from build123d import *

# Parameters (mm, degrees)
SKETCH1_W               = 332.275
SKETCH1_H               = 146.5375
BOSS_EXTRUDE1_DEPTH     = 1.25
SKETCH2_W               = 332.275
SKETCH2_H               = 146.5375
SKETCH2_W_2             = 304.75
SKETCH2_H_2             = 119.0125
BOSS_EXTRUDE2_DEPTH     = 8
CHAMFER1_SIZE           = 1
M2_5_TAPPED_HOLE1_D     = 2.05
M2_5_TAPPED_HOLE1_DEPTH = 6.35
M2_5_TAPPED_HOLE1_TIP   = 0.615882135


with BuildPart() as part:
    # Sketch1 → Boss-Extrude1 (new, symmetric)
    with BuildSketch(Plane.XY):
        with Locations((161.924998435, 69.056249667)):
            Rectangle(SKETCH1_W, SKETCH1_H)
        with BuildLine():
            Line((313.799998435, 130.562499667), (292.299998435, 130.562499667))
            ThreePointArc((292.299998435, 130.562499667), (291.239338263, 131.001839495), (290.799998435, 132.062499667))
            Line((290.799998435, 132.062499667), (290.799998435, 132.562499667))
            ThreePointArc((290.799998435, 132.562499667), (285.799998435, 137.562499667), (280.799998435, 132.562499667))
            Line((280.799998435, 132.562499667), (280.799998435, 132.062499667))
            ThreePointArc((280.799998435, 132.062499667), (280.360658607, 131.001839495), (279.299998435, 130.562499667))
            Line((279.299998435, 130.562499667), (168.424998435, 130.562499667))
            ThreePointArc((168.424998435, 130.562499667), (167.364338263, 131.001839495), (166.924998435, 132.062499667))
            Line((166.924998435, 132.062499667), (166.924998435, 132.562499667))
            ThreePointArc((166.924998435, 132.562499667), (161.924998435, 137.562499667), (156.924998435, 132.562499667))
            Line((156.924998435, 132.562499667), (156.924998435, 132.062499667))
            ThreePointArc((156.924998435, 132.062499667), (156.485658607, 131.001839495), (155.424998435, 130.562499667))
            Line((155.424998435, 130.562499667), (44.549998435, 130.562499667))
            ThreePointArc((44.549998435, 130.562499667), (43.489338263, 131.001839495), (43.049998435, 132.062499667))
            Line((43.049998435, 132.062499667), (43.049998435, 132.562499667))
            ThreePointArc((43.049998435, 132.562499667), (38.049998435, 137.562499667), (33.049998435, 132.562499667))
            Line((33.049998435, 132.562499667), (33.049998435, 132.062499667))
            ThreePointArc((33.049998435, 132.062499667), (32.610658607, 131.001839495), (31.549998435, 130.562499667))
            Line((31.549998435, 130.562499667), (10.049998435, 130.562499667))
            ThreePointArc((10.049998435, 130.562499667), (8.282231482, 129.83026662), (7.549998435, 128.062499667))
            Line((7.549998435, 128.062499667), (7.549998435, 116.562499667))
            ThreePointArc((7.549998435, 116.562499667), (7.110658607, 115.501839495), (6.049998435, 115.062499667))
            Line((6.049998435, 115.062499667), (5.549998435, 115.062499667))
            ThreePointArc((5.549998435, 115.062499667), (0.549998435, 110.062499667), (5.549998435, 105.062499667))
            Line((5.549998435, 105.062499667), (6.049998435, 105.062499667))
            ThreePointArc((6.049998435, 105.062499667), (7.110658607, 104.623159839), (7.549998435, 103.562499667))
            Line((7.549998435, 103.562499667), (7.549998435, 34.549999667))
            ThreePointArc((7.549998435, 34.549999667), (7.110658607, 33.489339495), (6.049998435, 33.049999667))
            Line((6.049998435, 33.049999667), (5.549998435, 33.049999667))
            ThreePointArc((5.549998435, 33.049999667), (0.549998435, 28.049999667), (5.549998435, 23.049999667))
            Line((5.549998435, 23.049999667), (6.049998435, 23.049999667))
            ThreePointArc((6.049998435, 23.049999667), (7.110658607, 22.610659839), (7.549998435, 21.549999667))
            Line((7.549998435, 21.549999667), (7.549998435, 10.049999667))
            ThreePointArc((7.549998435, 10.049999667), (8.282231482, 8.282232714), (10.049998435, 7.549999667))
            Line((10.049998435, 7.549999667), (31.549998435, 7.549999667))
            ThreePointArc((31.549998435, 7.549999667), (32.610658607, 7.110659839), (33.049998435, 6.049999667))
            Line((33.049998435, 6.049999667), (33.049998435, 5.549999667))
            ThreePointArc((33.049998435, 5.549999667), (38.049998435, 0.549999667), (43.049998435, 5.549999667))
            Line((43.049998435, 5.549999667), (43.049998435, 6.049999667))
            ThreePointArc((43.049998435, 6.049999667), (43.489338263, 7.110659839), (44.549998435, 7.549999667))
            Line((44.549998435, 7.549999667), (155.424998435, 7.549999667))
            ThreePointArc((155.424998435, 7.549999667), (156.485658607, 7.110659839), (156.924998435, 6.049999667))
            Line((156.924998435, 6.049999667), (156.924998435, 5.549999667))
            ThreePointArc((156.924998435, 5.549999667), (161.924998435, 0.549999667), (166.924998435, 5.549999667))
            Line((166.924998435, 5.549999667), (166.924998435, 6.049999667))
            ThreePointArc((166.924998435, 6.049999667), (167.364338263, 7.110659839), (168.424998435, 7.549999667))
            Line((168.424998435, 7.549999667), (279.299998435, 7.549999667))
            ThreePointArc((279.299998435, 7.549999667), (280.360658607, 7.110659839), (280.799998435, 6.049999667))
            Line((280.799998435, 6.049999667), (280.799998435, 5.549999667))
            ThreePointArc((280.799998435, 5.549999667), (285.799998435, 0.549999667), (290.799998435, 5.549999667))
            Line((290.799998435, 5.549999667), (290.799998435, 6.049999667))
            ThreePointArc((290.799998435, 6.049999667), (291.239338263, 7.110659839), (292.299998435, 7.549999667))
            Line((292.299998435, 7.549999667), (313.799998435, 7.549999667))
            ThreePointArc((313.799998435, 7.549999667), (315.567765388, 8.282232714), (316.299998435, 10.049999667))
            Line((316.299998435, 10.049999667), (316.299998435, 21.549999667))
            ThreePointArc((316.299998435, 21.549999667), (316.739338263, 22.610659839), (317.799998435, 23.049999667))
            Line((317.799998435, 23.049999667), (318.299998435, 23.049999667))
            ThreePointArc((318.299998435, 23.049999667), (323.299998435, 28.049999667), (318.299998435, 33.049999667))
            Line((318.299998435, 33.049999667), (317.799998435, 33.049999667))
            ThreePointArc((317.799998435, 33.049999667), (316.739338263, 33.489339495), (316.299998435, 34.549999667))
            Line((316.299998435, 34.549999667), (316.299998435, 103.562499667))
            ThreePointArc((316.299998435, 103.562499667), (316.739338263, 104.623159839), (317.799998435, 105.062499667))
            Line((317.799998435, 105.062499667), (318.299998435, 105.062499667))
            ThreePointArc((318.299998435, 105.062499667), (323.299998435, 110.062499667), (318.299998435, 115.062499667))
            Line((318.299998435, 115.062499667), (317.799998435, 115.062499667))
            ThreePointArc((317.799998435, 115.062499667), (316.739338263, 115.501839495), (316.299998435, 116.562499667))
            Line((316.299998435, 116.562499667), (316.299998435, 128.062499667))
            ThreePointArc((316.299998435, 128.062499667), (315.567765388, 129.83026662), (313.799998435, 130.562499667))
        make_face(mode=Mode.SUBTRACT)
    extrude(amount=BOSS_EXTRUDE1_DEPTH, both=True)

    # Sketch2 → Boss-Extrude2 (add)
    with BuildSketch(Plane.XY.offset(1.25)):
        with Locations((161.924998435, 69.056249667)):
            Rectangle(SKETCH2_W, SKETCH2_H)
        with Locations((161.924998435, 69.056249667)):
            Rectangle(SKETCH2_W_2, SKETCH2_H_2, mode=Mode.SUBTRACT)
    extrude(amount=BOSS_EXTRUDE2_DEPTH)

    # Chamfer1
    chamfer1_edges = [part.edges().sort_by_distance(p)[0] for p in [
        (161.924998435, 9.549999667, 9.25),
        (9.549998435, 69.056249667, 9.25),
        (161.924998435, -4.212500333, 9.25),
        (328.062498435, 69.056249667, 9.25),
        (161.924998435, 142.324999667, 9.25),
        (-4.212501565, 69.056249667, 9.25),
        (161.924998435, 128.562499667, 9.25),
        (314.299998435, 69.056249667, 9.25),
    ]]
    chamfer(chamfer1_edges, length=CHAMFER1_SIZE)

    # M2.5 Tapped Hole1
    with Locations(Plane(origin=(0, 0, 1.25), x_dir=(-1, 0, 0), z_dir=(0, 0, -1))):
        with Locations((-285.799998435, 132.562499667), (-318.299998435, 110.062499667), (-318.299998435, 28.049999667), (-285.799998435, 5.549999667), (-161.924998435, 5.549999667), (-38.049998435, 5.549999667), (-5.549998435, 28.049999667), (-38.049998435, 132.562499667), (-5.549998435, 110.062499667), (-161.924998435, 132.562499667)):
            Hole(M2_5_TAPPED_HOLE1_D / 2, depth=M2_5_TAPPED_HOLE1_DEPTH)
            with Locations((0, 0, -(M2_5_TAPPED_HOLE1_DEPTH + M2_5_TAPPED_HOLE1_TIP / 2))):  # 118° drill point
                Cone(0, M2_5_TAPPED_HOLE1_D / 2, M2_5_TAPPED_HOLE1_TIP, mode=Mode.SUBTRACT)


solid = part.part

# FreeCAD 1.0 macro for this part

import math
import FreeCAD as App
import Part
import Sketcher


def edges_at(feature, points):
    """Names of the edges that pass closest to the given points."""
    edges = feature.Shape.Edges
    near = lambda p: min(range(len(edges)), key=lambda i: edges[i].distToShape(Part.Vertex(*p))[0])
    return sorted({f"Edge{near(p) + 1}" for p in points})


def add_polygon(sketch, points):
    """Adds a closed chain of lines whose ends are joined by coincident constraints."""
    first, n = sketch.GeometryCount, len(points)
    for a, b in zip(points, points[1:] + points[:1]):
        sketch.addGeometry(Part.LineSegment(App.Vector(*a, 0), App.Vector(*b, 0)), False)
    for i in range(n):
        sketch.addConstraint(Sketcher.Constraint("Coincident", first + i, 2, first + (i + 1) % n, 1))

doc = App.newDocument("Part")
body = doc.addObject("PartDesign::Body", "Body")

# Sketch on XY plane
sketch1 = doc.addObject("Sketcher::SketchObject", "Sketch")
body.addObject(sketch1)
sketch1.AttachmentSupport = (doc.XY_Plane, [""])
sketch1.MapMode = "FlatFace"
add_polygon(sketch1, [(-4.2, 142.3), (-4.2, -4.2), (328.1, -4.2), (328.1, 142.3)])  # lines 0-3
sketch1.addGeometry(Part.LineSegment(App.Vector(292.3, 130.6, 0), App.Vector(313.8, 130.6, 0)), False)  # 4
sketch1.addGeometry(Part.ArcOfCircle(Part.Circle(App.Vector(313.8, 128.1, 0), App.Vector(0, 0, 1), 2.5), math.radians(0), math.radians(90)), False)  # 5
sketch1.addGeometry(Part.LineSegment(App.Vector(316.3, 128.1, 0), App.Vector(316.3, 116.6, 0)), False)  # 6
sketch1.addGeometry(Part.ArcOfCircle(Part.Circle(App.Vector(317.8, 116.6, 0), App.Vector(0, 0, 1), 1.5), math.radians(180), math.radians(270)), False)  # 7
sketch1.addGeometry(Part.LineSegment(App.Vector(317.8, 115.1, 0), App.Vector(318.3, 115.1, 0)), False)  # 8
sketch1.addGeometry(Part.ArcOfCircle(Part.Circle(App.Vector(318.3, 110.1, 0), App.Vector(0, 0, 1), 5), math.radians(-90), math.radians(90)), False)  # 9
sketch1.addGeometry(Part.LineSegment(App.Vector(318.3, 105.1, 0), App.Vector(317.8, 105.1, 0)), False)  # 10
sketch1.addGeometry(Part.ArcOfCircle(Part.Circle(App.Vector(317.8, 103.6, 0), App.Vector(0, 0, 1), 1.5), math.radians(90), math.radians(180)), False)  # 11
sketch1.addGeometry(Part.LineSegment(App.Vector(316.3, 103.6, 0), App.Vector(316.3, 34.5, 0)), False)  # 12
sketch1.addGeometry(Part.ArcOfCircle(Part.Circle(App.Vector(317.8, 34.5, 0), App.Vector(0, 0, 1), 1.5), math.radians(180), math.radians(270)), False)  # 13
sketch1.addGeometry(Part.LineSegment(App.Vector(317.8, 33, 0), App.Vector(318.3, 33, 0)), False)  # 14
sketch1.addGeometry(Part.ArcOfCircle(Part.Circle(App.Vector(318.3, 28, 0), App.Vector(0, 0, 1), 5), math.radians(-90), math.radians(90)), False)  # 15
sketch1.addGeometry(Part.LineSegment(App.Vector(318.3, 23, 0), App.Vector(317.8, 23, 0)), False)  # 16
sketch1.addGeometry(Part.ArcOfCircle(Part.Circle(App.Vector(317.8, 21.5, 0), App.Vector(0, 0, 1), 1.5), math.radians(90), math.radians(180)), False)  # 17
sketch1.addGeometry(Part.LineSegment(App.Vector(316.3, 21.5, 0), App.Vector(316.3, 10, 0)), False)  # 18
sketch1.addGeometry(Part.ArcOfCircle(Part.Circle(App.Vector(313.8, 10, 0), App.Vector(0, 0, 1), 2.5), math.radians(-90), math.radians(0)), False)  # 19
sketch1.addGeometry(Part.LineSegment(App.Vector(313.8, 7.5, 0), App.Vector(292.3, 7.5, 0)), False)  # 20
sketch1.addGeometry(Part.ArcOfCircle(Part.Circle(App.Vector(292.3, 6, 0), App.Vector(0, 0, 1), 1.5), math.radians(90), math.radians(180)), False)  # 21
sketch1.addGeometry(Part.LineSegment(App.Vector(290.8, 6, 0), App.Vector(290.8, 5.5, 0)), False)  # 22
sketch1.addGeometry(Part.ArcOfCircle(Part.Circle(App.Vector(285.8, 5.5, 0), App.Vector(0, 0, 1), 5), math.radians(180), math.radians(360)), False)  # 23
sketch1.addGeometry(Part.LineSegment(App.Vector(280.8, 5.5, 0), App.Vector(280.8, 6, 0)), False)  # 24
sketch1.addGeometry(Part.ArcOfCircle(Part.Circle(App.Vector(279.3, 6, 0), App.Vector(0, 0, 1), 1.5), math.radians(0), math.radians(90)), False)  # 25
sketch1.addGeometry(Part.LineSegment(App.Vector(279.3, 7.5, 0), App.Vector(168.4, 7.5, 0)), False)  # 26
sketch1.addGeometry(Part.ArcOfCircle(Part.Circle(App.Vector(168.4, 6, 0), App.Vector(0, 0, 1), 1.5), math.radians(90), math.radians(180)), False)  # 27
sketch1.addGeometry(Part.LineSegment(App.Vector(166.9, 6, 0), App.Vector(166.9, 5.5, 0)), False)  # 28
sketch1.addGeometry(Part.ArcOfCircle(Part.Circle(App.Vector(161.9, 5.5, 0), App.Vector(0, 0, 1), 5), math.radians(180), math.radians(360)), False)  # 29
sketch1.addGeometry(Part.LineSegment(App.Vector(156.9, 5.5, 0), App.Vector(156.9, 6, 0)), False)  # 30
sketch1.addGeometry(Part.ArcOfCircle(Part.Circle(App.Vector(155.4, 6, 0), App.Vector(0, 0, 1), 1.5), math.radians(0), math.radians(90)), False)  # 31
sketch1.addGeometry(Part.LineSegment(App.Vector(155.4, 7.5, 0), App.Vector(44.5, 7.5, 0)), False)  # 32
sketch1.addGeometry(Part.ArcOfCircle(Part.Circle(App.Vector(44.5, 6, 0), App.Vector(0, 0, 1), 1.5), math.radians(90), math.radians(180)), False)  # 33
sketch1.addGeometry(Part.LineSegment(App.Vector(43, 6, 0), App.Vector(43, 5.5, 0)), False)  # 34
sketch1.addGeometry(Part.ArcOfCircle(Part.Circle(App.Vector(38, 5.5, 0), App.Vector(0, 0, 1), 5), math.radians(180), math.radians(360)), False)  # 35
sketch1.addGeometry(Part.LineSegment(App.Vector(33, 5.5, 0), App.Vector(33, 6, 0)), False)  # 36
sketch1.addGeometry(Part.ArcOfCircle(Part.Circle(App.Vector(31.5, 6, 0), App.Vector(0, 0, 1), 1.5), math.radians(0), math.radians(90)), False)  # 37
sketch1.addGeometry(Part.LineSegment(App.Vector(31.5, 7.5, 0), App.Vector(10, 7.5, 0)), False)  # 38
sketch1.addGeometry(Part.ArcOfCircle(Part.Circle(App.Vector(10, 10, 0), App.Vector(0, 0, 1), 2.5), math.radians(180), math.radians(270)), False)  # 39
sketch1.addGeometry(Part.LineSegment(App.Vector(7.5, 10, 0), App.Vector(7.5, 21.5, 0)), False)  # 40
sketch1.addGeometry(Part.ArcOfCircle(Part.Circle(App.Vector(6, 21.5, 0), App.Vector(0, 0, 1), 1.5), math.radians(0), math.radians(90)), False)  # 41
sketch1.addGeometry(Part.LineSegment(App.Vector(6, 23, 0), App.Vector(5.5, 23, 0)), False)  # 42
sketch1.addGeometry(Part.ArcOfCircle(Part.Circle(App.Vector(5.5, 28, 0), App.Vector(0, 0, 1), 5), math.radians(90), math.radians(270)), False)  # 43
sketch1.addGeometry(Part.LineSegment(App.Vector(5.5, 33, 0), App.Vector(6, 33, 0)), False)  # 44
sketch1.addGeometry(Part.ArcOfCircle(Part.Circle(App.Vector(6, 34.5, 0), App.Vector(0, 0, 1), 1.5), math.radians(-90), math.radians(0)), False)  # 45
sketch1.addGeometry(Part.LineSegment(App.Vector(7.5, 34.5, 0), App.Vector(7.5, 103.6, 0)), False)  # 46
sketch1.addGeometry(Part.ArcOfCircle(Part.Circle(App.Vector(6, 103.6, 0), App.Vector(0, 0, 1), 1.5), math.radians(0), math.radians(90)), False)  # 47
sketch1.addGeometry(Part.LineSegment(App.Vector(6, 105.1, 0), App.Vector(5.5, 105.1, 0)), False)  # 48
sketch1.addGeometry(Part.ArcOfCircle(Part.Circle(App.Vector(5.5, 110.1, 0), App.Vector(0, 0, 1), 5), math.radians(90), math.radians(270)), False)  # 49
sketch1.addGeometry(Part.LineSegment(App.Vector(5.5, 115.1, 0), App.Vector(6, 115.1, 0)), False)  # 50
sketch1.addGeometry(Part.ArcOfCircle(Part.Circle(App.Vector(6, 116.6, 0), App.Vector(0, 0, 1), 1.5), math.radians(-90), math.radians(0)), False)  # 51
sketch1.addGeometry(Part.LineSegment(App.Vector(7.5, 116.6, 0), App.Vector(7.5, 128.1, 0)), False)  # 52
sketch1.addGeometry(Part.ArcOfCircle(Part.Circle(App.Vector(10, 128.1, 0), App.Vector(0, 0, 1), 2.5), math.radians(90), math.radians(180)), False)  # 53
sketch1.addGeometry(Part.LineSegment(App.Vector(10, 130.6, 0), App.Vector(31.5, 130.6, 0)), False)  # 54
sketch1.addGeometry(Part.ArcOfCircle(Part.Circle(App.Vector(31.5, 132.1, 0), App.Vector(0, 0, 1), 1.5), math.radians(-90), math.radians(0)), False)  # 55
sketch1.addGeometry(Part.LineSegment(App.Vector(33, 132.1, 0), App.Vector(33, 132.6, 0)), False)  # 56
sketch1.addGeometry(Part.ArcOfCircle(Part.Circle(App.Vector(38, 132.6, 0), App.Vector(0, 0, 1), 5), math.radians(0), math.radians(180)), False)  # 57
sketch1.addGeometry(Part.LineSegment(App.Vector(43, 132.6, 0), App.Vector(43, 132.1, 0)), False)  # 58
sketch1.addGeometry(Part.ArcOfCircle(Part.Circle(App.Vector(44.5, 132.1, 0), App.Vector(0, 0, 1), 1.5), math.radians(180), math.radians(270)), False)  # 59
sketch1.addGeometry(Part.LineSegment(App.Vector(44.5, 130.6, 0), App.Vector(155.4, 130.6, 0)), False)  # 60
sketch1.addGeometry(Part.ArcOfCircle(Part.Circle(App.Vector(155.4, 132.1, 0), App.Vector(0, 0, 1), 1.5), math.radians(-90), math.radians(0)), False)  # 61
sketch1.addGeometry(Part.LineSegment(App.Vector(156.9, 132.1, 0), App.Vector(156.9, 132.6, 0)), False)  # 62
sketch1.addGeometry(Part.ArcOfCircle(Part.Circle(App.Vector(161.9, 132.6, 0), App.Vector(0, 0, 1), 5), math.radians(0), math.radians(180)), False)  # 63
sketch1.addGeometry(Part.LineSegment(App.Vector(166.9, 132.6, 0), App.Vector(166.9, 132.1, 0)), False)  # 64
sketch1.addGeometry(Part.ArcOfCircle(Part.Circle(App.Vector(168.4, 132.1, 0), App.Vector(0, 0, 1), 1.5), math.radians(180), math.radians(270)), False)  # 65
sketch1.addGeometry(Part.LineSegment(App.Vector(168.4, 130.6, 0), App.Vector(279.3, 130.6, 0)), False)  # 66
sketch1.addGeometry(Part.ArcOfCircle(Part.Circle(App.Vector(279.3, 132.1, 0), App.Vector(0, 0, 1), 1.5), math.radians(-90), math.radians(0)), False)  # 67
sketch1.addGeometry(Part.LineSegment(App.Vector(280.8, 132.1, 0), App.Vector(280.8, 132.6, 0)), False)  # 68
sketch1.addGeometry(Part.ArcOfCircle(Part.Circle(App.Vector(285.8, 132.6, 0), App.Vector(0, 0, 1), 5), math.radians(0), math.radians(180)), False)  # 69
sketch1.addGeometry(Part.LineSegment(App.Vector(290.8, 132.6, 0), App.Vector(290.8, 132.1, 0)), False)  # 70
sketch1.addGeometry(Part.ArcOfCircle(Part.Circle(App.Vector(292.3, 132.1, 0), App.Vector(0, 0, 1), 1.5), math.radians(180), math.radians(270)), False)  # 71
sketch1.addConstraint([
    Sketcher.Constraint("Tangent", 4, 2, 5, 2),
    Sketcher.Constraint("Tangent", 5, 1, 6, 1),
    Sketcher.Constraint("Tangent", 6, 2, 7, 1),
    Sketcher.Constraint("Tangent", 7, 2, 8, 1),
    Sketcher.Constraint("Tangent", 8, 2, 9, 2),
    Sketcher.Constraint("Tangent", 9, 1, 10, 1),
    Sketcher.Constraint("Tangent", 10, 2, 11, 1),
    Sketcher.Constraint("Tangent", 11, 2, 12, 1),
    Sketcher.Constraint("Tangent", 12, 2, 13, 1),
    Sketcher.Constraint("Tangent", 13, 2, 14, 1),
    Sketcher.Constraint("Tangent", 14, 2, 15, 2),
    Sketcher.Constraint("Tangent", 15, 1, 16, 1),
    Sketcher.Constraint("Tangent", 16, 2, 17, 1),
    Sketcher.Constraint("Tangent", 17, 2, 18, 1),
    Sketcher.Constraint("Tangent", 18, 2, 19, 2),
    Sketcher.Constraint("Tangent", 19, 1, 20, 1),
    Sketcher.Constraint("Tangent", 20, 2, 21, 1),
    Sketcher.Constraint("Tangent", 21, 2, 22, 1),
    Sketcher.Constraint("Tangent", 22, 2, 23, 2),
    Sketcher.Constraint("Tangent", 23, 1, 24, 1),
    Sketcher.Constraint("Tangent", 24, 2, 25, 1),
    Sketcher.Constraint("Tangent", 25, 2, 26, 1),
    Sketcher.Constraint("Tangent", 26, 2, 27, 1),
    Sketcher.Constraint("Tangent", 27, 2, 28, 1),
    Sketcher.Constraint("Tangent", 28, 2, 29, 2),
    Sketcher.Constraint("Tangent", 29, 1, 30, 1),
    Sketcher.Constraint("Tangent", 30, 2, 31, 1),
    Sketcher.Constraint("Tangent", 31, 2, 32, 1),
    Sketcher.Constraint("Tangent", 32, 2, 33, 1),
    Sketcher.Constraint("Tangent", 33, 2, 34, 1),
    Sketcher.Constraint("Tangent", 34, 2, 35, 2),
    Sketcher.Constraint("Tangent", 35, 1, 36, 1),
    Sketcher.Constraint("Tangent", 36, 2, 37, 1),
    Sketcher.Constraint("Tangent", 37, 2, 38, 1),
    Sketcher.Constraint("Tangent", 38, 2, 39, 2),
    Sketcher.Constraint("Tangent", 39, 1, 40, 1),
    Sketcher.Constraint("Tangent", 40, 2, 41, 1),
    Sketcher.Constraint("Tangent", 41, 2, 42, 1),
    Sketcher.Constraint("Tangent", 42, 2, 43, 2),
    Sketcher.Constraint("Tangent", 43, 1, 44, 1),
    Sketcher.Constraint("Tangent", 44, 2, 45, 1),
    Sketcher.Constraint("Tangent", 45, 2, 46, 1),
    Sketcher.Constraint("Tangent", 46, 2, 47, 1),
    Sketcher.Constraint("Tangent", 47, 2, 48, 1),
    Sketcher.Constraint("Tangent", 48, 2, 49, 2),
    Sketcher.Constraint("Tangent", 49, 1, 50, 1),
    Sketcher.Constraint("Tangent", 50, 2, 51, 1),
    Sketcher.Constraint("Tangent", 51, 2, 52, 1),
    Sketcher.Constraint("Tangent", 52, 2, 53, 2),
    Sketcher.Constraint("Tangent", 53, 1, 54, 1),
    Sketcher.Constraint("Tangent", 54, 2, 55, 1),
    Sketcher.Constraint("Tangent", 55, 2, 56, 1),
    Sketcher.Constraint("Tangent", 56, 2, 57, 2),
    Sketcher.Constraint("Tangent", 57, 1, 58, 1),
    Sketcher.Constraint("Tangent", 58, 2, 59, 1),
    Sketcher.Constraint("Tangent", 59, 2, 60, 1),
    Sketcher.Constraint("Tangent", 60, 2, 61, 1),
    Sketcher.Constraint("Tangent", 61, 2, 62, 1),
    Sketcher.Constraint("Tangent", 62, 2, 63, 2),
    Sketcher.Constraint("Tangent", 63, 1, 64, 1),
    Sketcher.Constraint("Tangent", 64, 2, 65, 1),
    Sketcher.Constraint("Tangent", 65, 2, 66, 1),
    Sketcher.Constraint("Tangent", 66, 2, 67, 1),
    Sketcher.Constraint("Tangent", 67, 2, 68, 1),
    Sketcher.Constraint("Tangent", 68, 2, 69, 2),
    Sketcher.Constraint("Tangent", 69, 1, 70, 1),
    Sketcher.Constraint("Tangent", 70, 2, 71, 1),
    Sketcher.Constraint("Tangent", 71, 2, 4, 1),
    Sketcher.Constraint("Vertical", 0),
    Sketcher.Constraint("Horizontal", 1),
    Sketcher.Constraint("Vertical", 2),
    Sketcher.Constraint("Horizontal", 3),
    Sketcher.Constraint("Horizontal", 4),
    Sketcher.Constraint("Vertical", 6),
    Sketcher.Constraint("Horizontal", 8),
    Sketcher.Constraint("Horizontal", 10),
    Sketcher.Constraint("Vertical", 12),
    Sketcher.Constraint("Horizontal", 14),
    Sketcher.Constraint("Horizontal", 16),
    Sketcher.Constraint("Vertical", 18),
    Sketcher.Constraint("Horizontal", 20),
    Sketcher.Constraint("Vertical", 22),
    Sketcher.Constraint("Vertical", 24),
    Sketcher.Constraint("Horizontal", 26),
    Sketcher.Constraint("Vertical", 28),
    Sketcher.Constraint("Vertical", 30),
    Sketcher.Constraint("Horizontal", 32),
    Sketcher.Constraint("Vertical", 34),
    Sketcher.Constraint("Vertical", 36),
    Sketcher.Constraint("Horizontal", 38),
    Sketcher.Constraint("Vertical", 40),
    Sketcher.Constraint("Horizontal", 42),
    Sketcher.Constraint("Horizontal", 44),
    Sketcher.Constraint("Vertical", 46),
    Sketcher.Constraint("Horizontal", 48),
    Sketcher.Constraint("Horizontal", 50),
    Sketcher.Constraint("Vertical", 52),
    Sketcher.Constraint("Horizontal", 54),
    Sketcher.Constraint("Vertical", 56),
    Sketcher.Constraint("Vertical", 58),
    Sketcher.Constraint("Horizontal", 60),
    Sketcher.Constraint("Vertical", 62),
    Sketcher.Constraint("Vertical", 64),
    Sketcher.Constraint("Horizontal", 66),
    Sketcher.Constraint("Vertical", 68),
    Sketcher.Constraint("Vertical", 70),
    Sketcher.Constraint("Equal", 7, 11),
    Sketcher.Constraint("Equal", 11, 13),
    Sketcher.Constraint("Equal", 9, 15),
    Sketcher.Constraint("Equal", 13, 17),
    Sketcher.Constraint("Equal", 5, 19),
    Sketcher.Constraint("Equal", 17, 21),
    Sketcher.Constraint("Equal", 15, 23),
    Sketcher.Constraint("Equal", 21, 25),
    Sketcher.Constraint("Equal", 25, 27),
    Sketcher.Constraint("Equal", 23, 29),
    Sketcher.Constraint("Equal", 27, 31),
    Sketcher.Constraint("Equal", 31, 33),
    Sketcher.Constraint("Equal", 29, 35),
    Sketcher.Constraint("Equal", 33, 37),
    Sketcher.Constraint("Equal", 19, 39),
    Sketcher.Constraint("Equal", 37, 41),
    Sketcher.Constraint("Equal", 35, 43),
    Sketcher.Constraint("Equal", 41, 45),
    Sketcher.Constraint("Equal", 45, 47),
    Sketcher.Constraint("Equal", 43, 49),
    Sketcher.Constraint("Equal", 47, 51),
    Sketcher.Constraint("Equal", 39, 53),
    Sketcher.Constraint("Equal", 51, 55),
    Sketcher.Constraint("Equal", 49, 57),
    Sketcher.Constraint("Equal", 55, 59),
    Sketcher.Constraint("Equal", 59, 61),
    Sketcher.Constraint("Equal", 57, 63),
    Sketcher.Constraint("Equal", 61, 65),
    Sketcher.Constraint("Equal", 65, 67),
    Sketcher.Constraint("Equal", 63, 69),
    Sketcher.Constraint("Equal", 67, 71),
    Sketcher.Constraint("Horizontal", 21, 3, 25, 3),
    Sketcher.Constraint("Horizontal", 23, 3, 29, 3),
    Sketcher.Constraint("Horizontal", 27, 3, 31, 3),
    Sketcher.Constraint("Horizontal", 29, 3, 35, 3),
    Sketcher.Constraint("Horizontal", 33, 3, 37, 3),
    Sketcher.Constraint("Horizontal", 17, 3, 41, 3),
    Sketcher.Constraint("Horizontal", 11, 3, 47, 3),
    Sketcher.Constraint("Horizontal", 5, 3, 53, 3),
    Sketcher.Constraint("Horizontal", 55, 3, 59, 3),
    Sketcher.Constraint("Horizontal", 57, 3, 63, 3),
    Sketcher.Constraint("Horizontal", 61, 3, 65, 3),
    Sketcher.Constraint("Horizontal", 63, 3, 69, 3),
    Sketcher.Constraint("Vertical", 7, 3, 11, 3),
    Sketcher.Constraint("Vertical", 9, 3, 15, 3),
    Sketcher.Constraint("Vertical", 13, 3, 17, 3),
    Sketcher.Constraint("Vertical", 41, 3, 45, 3),
    Sketcher.Constraint("Vertical", 43, 3, 49, 3),
    Sketcher.Constraint("Vertical", 47, 3, 51, 3),
    Sketcher.Constraint("Vertical", 37, 3, 55, 3),
    Sketcher.Constraint("Vertical", 31, 3, 61, 3),
    Sketcher.Constraint("Vertical", 25, 3, 67, 3),
    Sketcher.Constraint("Equal", 26, 32),
    Sketcher.Constraint("Equal", 20, 38),
    Sketcher.Constraint("Equal", 16, 42),
    Sketcher.Constraint("Equal", 6, 18),
    Sketcher.Constraint("Equal", 50, 22),
    Sketcher.Constraint("Equal", 36, 56),
    Sketcher.Constraint("Radius", 9, 5.0),
    Sketcher.Constraint("Radius", 5, 2.5),
    Sketcher.Constraint("Radius", 7, 1.5),
    Sketcher.Constraint("DistanceX", 4, 1, 4, 2, 21.5),
    Sketcher.Constraint("DistanceX", 8, 1, 8, 2, 0.5),
    Sketcher.Constraint("DistanceY", 6, 2, 6, 1, 11.5),
    Sketcher.Constraint("DistanceX", -1, 1, 5, 3, 313.799998),
    Sketcher.Constraint("DistanceX", 1, 1, 1, 2, 332.275),
    Sketcher.Constraint("DistanceX", 26, 2, 26, 1, 110.875),
    Sketcher.Constraint("DistanceY", -1, 1, 13, 3, 34.55),
    Sketcher.Constraint("DistanceY", 0, 2, 0, 1, 146.5375),
    Sketcher.Constraint("DistanceY", 12, 2, 12, 1, 69.0125),
    Sketcher.Constraint("DistanceY", -1, 1, 2, 2, 142.325),
    Sketcher.Constraint("DistanceX", 0, 2, -1, 1, 4.212502),
])
pad1 = doc.addObject("PartDesign::Pad", "Pad")
body.addObject(pad1)
pad1.Profile = sketch1
pad1.Length = 2.5
pad1.Midplane = True

# Sketch on XY plane
sketch2 = doc.addObject("Sketcher::SketchObject", "Sketch001")
body.addObject(sketch2)
sketch2.AttachmentSupport = (doc.XY_Plane, [""])
sketch2.MapMode = "FlatFace"
sketch2.AttachmentOffset = App.Placement(App.Vector(0, 0, 1.25), App.Rotation())
add_polygon(sketch2, [(-4, 142), (-4, -4), (328, -4), (328, 142)])  # lines 0-3
add_polygon(sketch2, [(314, 10), (10, 10), (10, 129), (314, 129)])  # lines 4-7
sketch2.addConstraint([
    Sketcher.Constraint("Vertical", 0),
    Sketcher.Constraint("Horizontal", 1),
    Sketcher.Constraint("Vertical", 2),
    Sketcher.Constraint("Horizontal", 3),
    Sketcher.Constraint("Horizontal", 4),
    Sketcher.Constraint("Vertical", 5),
    Sketcher.Constraint("Horizontal", 6),
    Sketcher.Constraint("Vertical", 7),
    Sketcher.Constraint("DistanceX", 4, 2, 4, 1, 304.75),
    Sketcher.Constraint("DistanceX", -1, 1, 6, 2, 314.299998),
    Sketcher.Constraint("DistanceX", 1, 1, 1, 2, 332.275),
    Sketcher.Constraint("DistanceY", -1, 1, 4, 2, 9.55),
    Sketcher.Constraint("DistanceY", 0, 2, 0, 1, 146.5375),
    Sketcher.Constraint("DistanceY", 5, 1, 5, 2, 119.0125),
    Sketcher.Constraint("DistanceY", -1, 1, 2, 2, 142.325),
    Sketcher.Constraint("DistanceX", 0, 2, -1, 1, 4.212502),
])
pad2 = doc.addObject("PartDesign::Pad", "Pad001")
body.addObject(pad2)
pad2.Profile = sketch2
pad2.Length = 8
doc.recompute()

chamfer = doc.addObject("PartDesign::Chamfer", "Chamfer")
body.addObject(chamfer)
chamfer.Base = (pad2, edges_at(pad2, [
    (161.925, 9.55, 9.25),
    (9.55, 69.056, 9.25),
    (161.925, -4.213, 9.25),
    (328.062, 69.056, 9.25),
    (161.925, 142.325, 9.25),
    (-4.213, 69.056, 9.25),
    (161.925, 128.562, 9.25),
    (314.3, 69.056, 9.25),
]))
chamfer.Size = 1

# Sketch on XY plane
sketch3 = doc.addObject("Sketcher::SketchObject", "Sketch002")
body.addObject(sketch3)
sketch3.AttachmentSupport = (doc.XY_Plane, [""])
sketch3.MapMode = "FlatFace"
sketch3.AttachmentOffset = App.Placement(App.Vector(0, 0, 1.25), App.Rotation())
sketch3.addGeometry([
    Part.Circle(App.Vector(285.8, 132.6, 0), App.Vector(0, 0, 1), 1),  # 0
    Part.Circle(App.Vector(318.3, 110.1, 0), App.Vector(0, 0, 1), 1),  # 1
    Part.Circle(App.Vector(318.3, 28, 0), App.Vector(0, 0, 1), 1),  # 2
    Part.Circle(App.Vector(285.8, 5.5, 0), App.Vector(0, 0, 1), 1),  # 3
    Part.Circle(App.Vector(161.9, 5.5, 0), App.Vector(0, 0, 1), 1),  # 4
    Part.Circle(App.Vector(38, 5.5, 0), App.Vector(0, 0, 1), 1),  # 5
    Part.Circle(App.Vector(5.5, 28, 0), App.Vector(0, 0, 1), 1),  # 6
    Part.Circle(App.Vector(38, 132.6, 0), App.Vector(0, 0, 1), 1),  # 7
    Part.Circle(App.Vector(5.5, 110.1, 0), App.Vector(0, 0, 1), 1),  # 8
    Part.Circle(App.Vector(161.9, 132.6, 0), App.Vector(0, 0, 1), 1),  # 9
], False)
sketch3.addConstraint([
    Sketcher.Constraint("Equal", 0, 1),
    Sketcher.Constraint("Equal", 1, 2),
    Sketcher.Constraint("Equal", 2, 3),
    Sketcher.Constraint("Equal", 3, 4),
    Sketcher.Constraint("Equal", 4, 5),
    Sketcher.Constraint("Equal", 5, 6),
    Sketcher.Constraint("Equal", 6, 7),
    Sketcher.Constraint("Equal", 7, 8),
    Sketcher.Constraint("Equal", 8, 9),
    Sketcher.Constraint("Horizontal", 3, 3, 4, 3),
    Sketcher.Constraint("Horizontal", 4, 3, 5, 3),
    Sketcher.Constraint("Horizontal", 2, 3, 6, 3),
    Sketcher.Constraint("Horizontal", 0, 3, 7, 3),
    Sketcher.Constraint("Horizontal", 1, 3, 8, 3),
    Sketcher.Constraint("Horizontal", 7, 3, 9, 3),
    Sketcher.Constraint("Vertical", 1, 3, 2, 3),
    Sketcher.Constraint("Vertical", 0, 3, 3, 3),
    Sketcher.Constraint("Vertical", 5, 3, 7, 3),
    Sketcher.Constraint("Vertical", 6, 3, 8, 3),
    Sketcher.Constraint("Vertical", 4, 3, 9, 3),
    Sketcher.Constraint("Diameter", 0, 2.05),
    Sketcher.Constraint("DistanceX", -1, 1, 0, 3, 285.799998),
    Sketcher.Constraint("DistanceX", -1, 1, 1, 3, 318.299998),
    Sketcher.Constraint("DistanceY", 1, 3, 0, 3, 22.5),
    Sketcher.Constraint("DistanceY", 3, 3, 2, 3, 22.5),
    Sketcher.Constraint("DistanceX", 6, 3, 5, 3, 32.5),
    Sketcher.Constraint("DistanceY", -1, 1, 2, 3, 28.05),
    Sketcher.Constraint("DistanceX", -1, 1, 5, 3, 38.049998),
    Sketcher.Constraint("DistanceX", -1, 1, 4, 3, 161.924998),
    Sketcher.Constraint("DistanceY", -1, 1, 0, 3, 132.5625),
])
doc.recompute()
hole = doc.addObject("PartDesign::Hole", "Hole")
body.addObject(hole)
hole.Profile = sketch3
hole.ThreadType = "None"
hole.Diameter = 2.05
hole.DepthType = "Dimension"
hole.Depth = 6.35
hole.DrillPoint = "Angled"
hole.DrillPointAngle = 118
hole.Reversed = True

doc.recompute()
